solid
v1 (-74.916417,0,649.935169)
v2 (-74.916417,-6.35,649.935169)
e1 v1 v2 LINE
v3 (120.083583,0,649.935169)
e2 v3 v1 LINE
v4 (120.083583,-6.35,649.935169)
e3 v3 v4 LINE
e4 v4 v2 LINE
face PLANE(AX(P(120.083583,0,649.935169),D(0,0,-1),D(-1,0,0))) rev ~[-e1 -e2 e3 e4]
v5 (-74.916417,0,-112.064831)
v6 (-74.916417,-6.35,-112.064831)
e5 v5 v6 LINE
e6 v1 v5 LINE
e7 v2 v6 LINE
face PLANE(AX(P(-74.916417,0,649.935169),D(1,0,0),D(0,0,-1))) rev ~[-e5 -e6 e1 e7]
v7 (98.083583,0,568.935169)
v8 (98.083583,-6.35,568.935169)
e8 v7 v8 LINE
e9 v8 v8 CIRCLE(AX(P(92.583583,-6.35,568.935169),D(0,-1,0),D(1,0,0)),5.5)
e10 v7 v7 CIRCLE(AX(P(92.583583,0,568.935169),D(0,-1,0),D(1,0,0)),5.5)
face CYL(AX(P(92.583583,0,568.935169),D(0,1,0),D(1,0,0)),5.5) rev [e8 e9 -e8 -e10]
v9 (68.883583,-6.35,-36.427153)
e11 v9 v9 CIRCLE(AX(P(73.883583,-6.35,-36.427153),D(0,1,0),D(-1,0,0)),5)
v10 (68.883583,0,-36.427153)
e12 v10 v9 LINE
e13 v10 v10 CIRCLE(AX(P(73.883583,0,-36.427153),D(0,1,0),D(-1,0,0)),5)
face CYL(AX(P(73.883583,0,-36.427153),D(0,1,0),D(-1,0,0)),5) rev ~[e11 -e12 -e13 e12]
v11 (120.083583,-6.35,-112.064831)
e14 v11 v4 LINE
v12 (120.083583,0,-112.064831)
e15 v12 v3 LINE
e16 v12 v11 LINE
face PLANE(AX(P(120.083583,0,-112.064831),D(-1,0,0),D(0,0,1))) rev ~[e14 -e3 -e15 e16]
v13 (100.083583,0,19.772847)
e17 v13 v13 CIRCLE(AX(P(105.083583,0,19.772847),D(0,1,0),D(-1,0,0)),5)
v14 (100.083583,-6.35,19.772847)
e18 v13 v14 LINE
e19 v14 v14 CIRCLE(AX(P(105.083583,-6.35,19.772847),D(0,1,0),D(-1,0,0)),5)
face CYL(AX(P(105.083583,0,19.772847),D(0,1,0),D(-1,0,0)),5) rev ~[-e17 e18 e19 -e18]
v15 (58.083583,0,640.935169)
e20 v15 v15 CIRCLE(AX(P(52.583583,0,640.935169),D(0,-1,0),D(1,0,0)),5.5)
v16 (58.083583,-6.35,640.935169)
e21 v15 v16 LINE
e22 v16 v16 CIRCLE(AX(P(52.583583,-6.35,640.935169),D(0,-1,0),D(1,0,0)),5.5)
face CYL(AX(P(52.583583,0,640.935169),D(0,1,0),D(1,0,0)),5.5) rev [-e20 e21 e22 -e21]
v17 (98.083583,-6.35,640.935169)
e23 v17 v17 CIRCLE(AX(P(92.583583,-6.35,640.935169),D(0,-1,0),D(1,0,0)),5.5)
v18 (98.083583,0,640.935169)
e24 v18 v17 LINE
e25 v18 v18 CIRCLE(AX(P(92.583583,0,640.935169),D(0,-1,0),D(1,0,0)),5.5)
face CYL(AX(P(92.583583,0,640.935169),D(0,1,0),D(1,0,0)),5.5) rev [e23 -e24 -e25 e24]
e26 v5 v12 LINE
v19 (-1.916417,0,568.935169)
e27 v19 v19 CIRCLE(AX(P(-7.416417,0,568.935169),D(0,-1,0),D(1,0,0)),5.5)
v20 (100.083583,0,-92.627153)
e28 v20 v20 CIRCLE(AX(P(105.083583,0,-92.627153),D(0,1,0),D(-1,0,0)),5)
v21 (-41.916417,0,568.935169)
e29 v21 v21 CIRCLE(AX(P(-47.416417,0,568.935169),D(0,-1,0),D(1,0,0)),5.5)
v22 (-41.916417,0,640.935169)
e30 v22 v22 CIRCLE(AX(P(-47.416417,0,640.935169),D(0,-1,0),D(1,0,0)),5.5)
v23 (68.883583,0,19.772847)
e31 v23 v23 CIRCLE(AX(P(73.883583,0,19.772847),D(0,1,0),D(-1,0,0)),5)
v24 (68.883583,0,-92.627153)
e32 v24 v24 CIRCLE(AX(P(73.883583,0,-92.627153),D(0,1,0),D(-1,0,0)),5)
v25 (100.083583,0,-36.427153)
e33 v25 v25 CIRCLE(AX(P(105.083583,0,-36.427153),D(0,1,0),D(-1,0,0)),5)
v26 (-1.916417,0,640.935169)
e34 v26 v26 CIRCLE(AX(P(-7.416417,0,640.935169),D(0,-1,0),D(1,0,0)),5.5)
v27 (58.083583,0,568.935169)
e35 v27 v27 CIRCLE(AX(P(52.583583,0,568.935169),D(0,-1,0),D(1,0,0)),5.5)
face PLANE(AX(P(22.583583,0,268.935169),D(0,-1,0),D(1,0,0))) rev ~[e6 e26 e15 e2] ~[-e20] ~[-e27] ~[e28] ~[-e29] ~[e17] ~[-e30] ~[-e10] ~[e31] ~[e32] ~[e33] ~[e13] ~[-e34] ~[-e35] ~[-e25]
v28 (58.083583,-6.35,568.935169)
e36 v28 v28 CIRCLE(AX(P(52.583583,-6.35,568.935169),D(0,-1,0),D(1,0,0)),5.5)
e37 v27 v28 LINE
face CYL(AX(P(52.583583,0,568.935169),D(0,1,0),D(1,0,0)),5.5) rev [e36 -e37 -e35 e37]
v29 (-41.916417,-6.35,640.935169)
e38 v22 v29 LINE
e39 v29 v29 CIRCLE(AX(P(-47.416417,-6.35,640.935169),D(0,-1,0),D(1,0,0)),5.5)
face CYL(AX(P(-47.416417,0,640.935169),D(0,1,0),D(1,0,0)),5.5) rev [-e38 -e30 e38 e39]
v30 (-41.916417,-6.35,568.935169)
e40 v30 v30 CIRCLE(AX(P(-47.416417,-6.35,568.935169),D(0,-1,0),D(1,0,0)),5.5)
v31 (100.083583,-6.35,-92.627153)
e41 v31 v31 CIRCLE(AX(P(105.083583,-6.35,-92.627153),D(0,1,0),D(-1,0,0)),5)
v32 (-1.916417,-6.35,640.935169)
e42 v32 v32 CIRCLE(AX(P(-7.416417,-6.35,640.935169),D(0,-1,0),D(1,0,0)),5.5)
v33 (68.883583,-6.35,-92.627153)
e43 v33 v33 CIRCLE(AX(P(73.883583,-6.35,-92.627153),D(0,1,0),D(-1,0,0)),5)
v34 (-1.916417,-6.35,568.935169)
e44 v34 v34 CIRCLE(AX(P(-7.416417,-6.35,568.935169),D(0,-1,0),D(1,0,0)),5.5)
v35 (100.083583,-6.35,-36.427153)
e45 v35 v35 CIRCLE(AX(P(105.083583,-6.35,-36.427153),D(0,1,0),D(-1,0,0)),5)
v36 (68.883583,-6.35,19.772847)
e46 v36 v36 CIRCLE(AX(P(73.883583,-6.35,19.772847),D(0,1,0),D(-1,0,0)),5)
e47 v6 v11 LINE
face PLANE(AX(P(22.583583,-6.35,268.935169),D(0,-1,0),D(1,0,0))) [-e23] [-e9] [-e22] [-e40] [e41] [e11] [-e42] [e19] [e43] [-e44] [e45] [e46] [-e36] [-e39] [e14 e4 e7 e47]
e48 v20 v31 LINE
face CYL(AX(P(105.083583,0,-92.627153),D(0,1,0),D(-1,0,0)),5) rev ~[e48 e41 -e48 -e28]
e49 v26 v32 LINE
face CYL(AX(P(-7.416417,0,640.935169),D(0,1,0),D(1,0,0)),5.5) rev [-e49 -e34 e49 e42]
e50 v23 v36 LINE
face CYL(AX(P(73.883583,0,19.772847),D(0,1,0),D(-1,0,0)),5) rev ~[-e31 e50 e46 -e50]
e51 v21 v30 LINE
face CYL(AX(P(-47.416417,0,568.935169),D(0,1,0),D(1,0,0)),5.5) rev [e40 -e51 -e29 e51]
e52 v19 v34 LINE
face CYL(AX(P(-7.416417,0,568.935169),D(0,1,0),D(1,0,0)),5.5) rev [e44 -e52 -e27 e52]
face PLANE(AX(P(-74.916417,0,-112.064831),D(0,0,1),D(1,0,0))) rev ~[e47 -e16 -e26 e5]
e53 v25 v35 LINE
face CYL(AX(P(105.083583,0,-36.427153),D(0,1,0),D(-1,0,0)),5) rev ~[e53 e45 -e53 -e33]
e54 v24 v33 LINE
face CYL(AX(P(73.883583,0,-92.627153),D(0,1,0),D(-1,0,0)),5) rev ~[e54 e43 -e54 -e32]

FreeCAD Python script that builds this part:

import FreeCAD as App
import Part
import Sketcher
Q = App.Units.Quantity

doc = App.newDocument("Part")
body = doc.addObject("PartDesign::Body", "Body")

# Sketch on XZ plane
sketch1 = doc.addObject("Sketcher::SketchObject", "Sketch")
body.addObject(sketch1)
sketch1.AttachmentSupport = (doc.XZ_Plane, [""])
sketch1.MapMode = "FlatFace"
sketch1.addGeometry([
    Part.LineSegment(App.Vector(-74.916417, 649.935169, 0), App.Vector(-74.916417, -112.064831, 0)),  # 0
    Part.LineSegment(App.Vector(-74.916417, -112.064831, 0), App.Vector(120.083583, -112.064831, 0)),  # 1
    Part.LineSegment(App.Vector(120.083583, -112.064831, 0), App.Vector(120.083583, 649.935169, 0)),  # 2
    Part.LineSegment(App.Vector(120.083583, 649.935169, 0), App.Vector(-74.916417, 649.935169, 0)),  # 3
    Part.Circle(App.Vector(-47.416417, 568.935169, 0), App.Vector(0, 0, 1), 5.5),  # 4
    Part.Circle(App.Vector(-7.416417, 568.935169, 0), App.Vector(0, 0, 1), 5.5),  # 5
    Part.Circle(App.Vector(52.583583, 568.935169, 0), App.Vector(0, 0, 1), 5.5),  # 6
    Part.Circle(App.Vector(92.583583, 568.935169, 0), App.Vector(0, 0, 1), 5.5),  # 7
    Part.Circle(App.Vector(-47.416417, 640.935169, 0), App.Vector(0, 0, 1), 5.5),  # 8
    Part.Circle(App.Vector(-7.416417, 640.935169, 0), App.Vector(0, 0, 1), 5.5),  # 9
    Part.Circle(App.Vector(52.583583, 640.935169, 0), App.Vector(0, 0, 1), 5.5),  # 10
    Part.Circle(App.Vector(92.583583, 640.935169, 0), App.Vector(0, 0, 1), 5.5),  # 11
], False)
sketch1.addConstraint([
    Sketcher.Constraint("Coincident", 0, 2, 1, 1),
    Sketcher.Constraint("Coincident", 1, 2, 2, 1),
    Sketcher.Constraint("Coincident", 2, 2, 3, 1),
    Sketcher.Constraint("Coincident", 3, 2, 0, 1),
    Sketcher.Constraint("Vertical", 0),
    Sketcher.Constraint("Horizontal", 1),
    Sketcher.Constraint("Vertical", 2),
    Sketcher.Constraint("Horizontal", 3),
    Sketcher.Constraint("Equal", 4, 5),
    Sketcher.Constraint("Equal", 5, 6),
    Sketcher.Constraint("Equal", 6, 7),
    Sketcher.Constraint("Equal", 7, 8),
    Sketcher.Constraint("Equal", 8, 9),
    Sketcher.Constraint("Equal", 9, 10),
    Sketcher.Constraint("Equal", 10, 11),
    Sketcher.Constraint("Horizontal", 4, 3, 5, 3),
    Sketcher.Constraint("Horizontal", 5, 3, 6, 3),
    Sketcher.Constraint("Horizontal", 6, 3, 7, 3),
    Sketcher.Constraint("Horizontal", 8, 3, 9, 3),
    Sketcher.Constraint("Horizontal", 9, 3, 10, 3),
    Sketcher.Constraint("Horizontal", 10, 3, 11, 3),
    Sketcher.Constraint("Vertical", 4, 3, 8, 3),
    Sketcher.Constraint("Vertical", 5, 3, 9, 3),
    Sketcher.Constraint("Vertical", 6, 3, 10, 3),
    Sketcher.Constraint("Vertical", 7, 3, 11, 3),
    Sketcher.Constraint("Diameter", 4, Q("11 mm")),
    Sketcher.Constraint("DistanceX", 1, 1, 1, 2, Q("195 mm")),
    Sketcher.Constraint("DistanceY", 0, 2, 0, 1, Q("762 mm")),
    Sketcher.Constraint("DistanceX", 4, 3, 5, 3, Q("40 mm")),
    Sketcher.Constraint("DistanceX", 5, 3, 6, 3, Q("60 mm")),
    Sketcher.Constraint("DistanceX", 6, 3, 7, 3, Q("40 mm")),
    Sketcher.Constraint("DistanceY", 4, 3, 8, 3, Q("72 mm")),
    Sketcher.Constraint("DistanceY", 0, 2, 4, 3, Q("681 mm")),
    Sketcher.Constraint("DistanceX", 0, 2, 4, 3, Q("27.5 mm")),
    Sketcher.Constraint("DistanceY", -1, 1, 4, 3, Q("568.935169 mm")),
    Sketcher.Constraint("DistanceX", 4, 3, -1, 1, Q("47.416417 mm")),
])
pad1 = doc.addObject("PartDesign::Pad", "Pad")
body.addObject(pad1)
pad1.Profile = sketch1
pad1.Length = 6.35

# Sketch on XZ plane
sketch2 = doc.addObject("Sketcher::SketchObject", "Sketch001")
body.addObject(sketch2)
sketch2.AttachmentSupport = (doc.XZ_Plane, [""])
sketch2.MapMode = "FlatFace"
sketch2.addGeometry([
    Part.Circle(App.Vector(73.883583, -92.627153, 0), App.Vector(0, 0, 1), 5),  # 0
    Part.Circle(App.Vector(105.083583, -92.627153, 0), App.Vector(0, 0, 1), 5),  # 1
    Part.Circle(App.Vector(73.883583, -36.427153, 0), App.Vector(0, 0, 1), 5),  # 2
    Part.Circle(App.Vector(105.083583, -36.427153, 0), App.Vector(0, 0, 1), 5),  # 3
    Part.Circle(App.Vector(105.083583, 19.772847, 0), App.Vector(0, 0, 1), 5),  # 4
    Part.Circle(App.Vector(73.883583, 19.772847, 0), App.Vector(0, 0, 1), 5),  # 5
], False)
sketch2.addConstraint([
    Sketcher.Constraint("Equal", 0, 1),
    Sketcher.Constraint("Equal", 1, 2),
    Sketcher.Constraint("Equal", 2, 3),
    Sketcher.Constraint("Equal", 3, 4),
    Sketcher.Constraint("Equal", 4, 5),
    Sketcher.Constraint("Horizontal", 0, 3, 1, 3),
    Sketcher.Constraint("Horizontal", 2, 3, 3, 3),
    Sketcher.Constraint("Horizontal", 4, 3, 5, 3),
    Sketcher.Constraint("Vertical", 0, 3, 2, 3),
    Sketcher.Constraint("Vertical", 1, 3, 3, 3),
    Sketcher.Constraint("Vertical", 3, 3, 4, 3),
    Sketcher.Constraint("Vertical", 2, 3, 5, 3),
    Sketcher.Constraint("Diameter", 0, Q("10 mm")),
    Sketcher.Constraint("DistanceX", 0, 3, 1, 3, Q("31.2 mm")),
    Sketcher.Constraint("DistanceY", 0, 3, 2, 3, Q("56.2 mm")),
    Sketcher.Constraint("DistanceY", 3, 3, 4, 3, Q("56.2 mm")),
    Sketcher.Constraint("DistanceX", -1, 1, 0, 3, Q("73.883583 mm")),
    Sketcher.Constraint("DistanceY", 0, 3, -1, 1, Q("92.627153 mm")),
])
pocket1 = doc.addObject("PartDesign::Pocket", "Pocket")
body.addObject(pocket1)
pocket1.Profile = sketch2
pocket1.Type = "ThroughAll"
pocket1.Reversed = True

doc.recompute()
